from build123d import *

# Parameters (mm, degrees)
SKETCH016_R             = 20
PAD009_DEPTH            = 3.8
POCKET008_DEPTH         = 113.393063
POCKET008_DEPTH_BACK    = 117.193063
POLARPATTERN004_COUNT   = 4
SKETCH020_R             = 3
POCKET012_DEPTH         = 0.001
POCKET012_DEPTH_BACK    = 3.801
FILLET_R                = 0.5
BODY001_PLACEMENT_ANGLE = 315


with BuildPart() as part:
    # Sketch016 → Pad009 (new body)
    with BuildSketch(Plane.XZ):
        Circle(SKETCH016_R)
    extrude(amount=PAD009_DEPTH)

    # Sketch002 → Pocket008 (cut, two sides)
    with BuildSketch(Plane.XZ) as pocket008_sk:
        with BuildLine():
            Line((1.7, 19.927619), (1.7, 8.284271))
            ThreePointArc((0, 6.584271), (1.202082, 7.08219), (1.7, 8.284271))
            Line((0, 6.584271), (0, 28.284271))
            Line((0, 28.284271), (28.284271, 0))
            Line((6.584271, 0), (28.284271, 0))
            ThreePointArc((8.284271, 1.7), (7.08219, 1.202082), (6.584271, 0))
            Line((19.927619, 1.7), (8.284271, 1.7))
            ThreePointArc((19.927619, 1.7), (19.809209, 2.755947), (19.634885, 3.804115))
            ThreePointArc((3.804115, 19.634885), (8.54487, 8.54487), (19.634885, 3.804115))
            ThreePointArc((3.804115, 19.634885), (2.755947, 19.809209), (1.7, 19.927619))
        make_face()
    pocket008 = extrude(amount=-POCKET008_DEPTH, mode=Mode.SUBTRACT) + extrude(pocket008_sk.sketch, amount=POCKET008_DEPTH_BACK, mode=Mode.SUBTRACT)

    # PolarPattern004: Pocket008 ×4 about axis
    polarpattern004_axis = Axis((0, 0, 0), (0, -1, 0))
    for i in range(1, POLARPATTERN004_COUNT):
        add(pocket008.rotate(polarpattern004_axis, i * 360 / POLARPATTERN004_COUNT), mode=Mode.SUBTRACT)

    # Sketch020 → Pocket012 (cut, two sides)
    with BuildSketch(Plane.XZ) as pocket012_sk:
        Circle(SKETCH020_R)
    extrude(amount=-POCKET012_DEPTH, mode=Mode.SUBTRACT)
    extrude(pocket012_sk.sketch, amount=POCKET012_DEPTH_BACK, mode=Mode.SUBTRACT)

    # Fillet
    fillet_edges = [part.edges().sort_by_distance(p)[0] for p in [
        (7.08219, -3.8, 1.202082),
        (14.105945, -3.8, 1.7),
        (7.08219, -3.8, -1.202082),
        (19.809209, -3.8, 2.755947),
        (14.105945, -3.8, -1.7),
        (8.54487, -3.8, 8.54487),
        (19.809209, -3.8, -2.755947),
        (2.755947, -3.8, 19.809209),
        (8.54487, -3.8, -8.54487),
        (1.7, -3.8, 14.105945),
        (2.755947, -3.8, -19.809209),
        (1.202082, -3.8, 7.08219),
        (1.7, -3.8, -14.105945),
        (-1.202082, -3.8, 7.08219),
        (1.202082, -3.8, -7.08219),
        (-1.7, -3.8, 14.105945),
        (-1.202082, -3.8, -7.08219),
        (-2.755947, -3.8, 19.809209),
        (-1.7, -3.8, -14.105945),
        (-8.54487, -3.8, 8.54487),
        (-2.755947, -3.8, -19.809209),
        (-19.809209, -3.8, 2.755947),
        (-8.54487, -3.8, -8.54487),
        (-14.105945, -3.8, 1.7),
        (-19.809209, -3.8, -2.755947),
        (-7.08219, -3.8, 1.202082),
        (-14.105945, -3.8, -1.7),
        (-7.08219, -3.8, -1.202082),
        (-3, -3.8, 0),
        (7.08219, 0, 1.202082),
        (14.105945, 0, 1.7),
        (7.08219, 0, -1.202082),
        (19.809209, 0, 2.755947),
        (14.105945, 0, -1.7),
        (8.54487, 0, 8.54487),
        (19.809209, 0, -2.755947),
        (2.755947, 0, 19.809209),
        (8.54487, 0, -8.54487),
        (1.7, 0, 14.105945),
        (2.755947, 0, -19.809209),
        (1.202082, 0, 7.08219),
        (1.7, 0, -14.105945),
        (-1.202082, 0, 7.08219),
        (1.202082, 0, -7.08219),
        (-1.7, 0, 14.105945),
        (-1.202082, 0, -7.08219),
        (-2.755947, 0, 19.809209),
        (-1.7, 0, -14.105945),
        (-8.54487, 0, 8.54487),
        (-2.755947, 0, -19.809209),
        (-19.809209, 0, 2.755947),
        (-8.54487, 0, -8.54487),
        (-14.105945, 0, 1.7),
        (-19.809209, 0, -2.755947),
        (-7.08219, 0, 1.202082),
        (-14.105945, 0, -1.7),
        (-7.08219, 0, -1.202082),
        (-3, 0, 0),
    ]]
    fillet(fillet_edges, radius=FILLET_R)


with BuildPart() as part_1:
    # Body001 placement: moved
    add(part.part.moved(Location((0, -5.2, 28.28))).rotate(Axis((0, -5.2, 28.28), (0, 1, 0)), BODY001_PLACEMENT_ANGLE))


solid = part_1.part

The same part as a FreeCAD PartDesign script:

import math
import FreeCAD as App
import Part
import Sketcher

V = App.Vector
Q = App.Units.Quantity


def edges_at(feature, points):
    """Names of the edges that pass closest to the given points."""
    edges = feature.Shape.Edges
    near = lambda p: min(range(len(edges)), key=lambda i: edges[i].distToShape(Part.Vertex(*p))[0])
    return sorted({f"Edge{near(p) + 1}" for p in points})

doc = App.newDocument("Part")
body = doc.addObject("PartDesign::Body", "Body")

# Sketch on XZ plane
sketch1 = body.newObject("Sketcher::SketchObject", "Sketch")
sketch1.AttachmentSupport = (doc.getObject("XZ_Plane"), [""])
sketch1.MapMode = "FlatFace"
sketch1.addGeometry(Part.Circle(V(0, 0, 0), V(0, 0, 1), 20), False)
sketch1.addConstraint([
    Sketcher.Constraint("Coincident", 0, 3, -1, 1),
    Sketcher.Constraint("Diameter", 0, Q("40 mm")),
])
pad1 = body.newObject("PartDesign::Pad", "Pad")
pad1.Profile = sketch1
pad1.Length = 3.8

# Sketch on XZ plane
sketch2 = body.newObject("Sketcher::SketchObject", "Sketch001")
sketch2.AttachmentSupport = (doc.getObject("XZ_Plane"), [""])
sketch2.MapMode = "FlatFace"
sketch2.addGeometry([
    Part.LineSegment(V(1.7, 8.284271, 0), V(1.7, 19.927619, 0)),  # 0
    Part.ArcOfCircle(Part.Circle(V(0.000014, 0.000099, 0), V(0, 0, 1), 19.999901), math.radians(79.035194), math.radians(85.123991)),  # 1
    Part.ArcOfCircle(Part.Circle(V(19.999999, 19.999999, 0), V(0, 0, 1), 16.199999), math.radians(-178.708562), math.radians(-91.291438)),  # 2
    Part.ArcOfCircle(Part.Circle(V(0.000099, 0.000014, 0), V(0, 0, 1), 19.999901), math.radians(4.876009), math.radians(10.964806)),  # 3
    Part.LineSegment(V(19.927619, 1.7, 0), V(8.284271, 1.7, 0)),  # 4
    Part.ArcOfCircle(Part.Circle(V(8.284271, 0, 0), V(0, 0, 1), 1.7), math.radians(90.000003), math.radians(179.999997)),  # 5
    Part.LineSegment(V(6.584271, 0, 0), V(28.284271, 0, 0)),  # 6
    Part.LineSegment(V(28.284271, 0, 0), V(0, 28.284271, 0)),  # 7
    Part.LineSegment(V(0, 28.284271, 0), V(0, 6.584271, 0)),  # 8
    Part.ArcOfCircle(Part.Circle(V(0, 8.284271, 0), V(0, 0, 1), 1.7), math.radians(-89.999997), math.radians(-0.000003)),  # 9
], False)
sketch2.addConstraint([
    Sketcher.Constraint("Coincident", 0, 2, 1, 2),
    Sketcher.Constraint("Coincident", 1, 1, 2, 1),
    Sketcher.Constraint("Coincident", 2, 2, 3, 2),
    Sketcher.Constraint("Coincident", 3, 1, 4, 1),
    Sketcher.Constraint("Tangent", 4, 2, 5, 1),
    Sketcher.Constraint("Coincident", 5, 2, 6, 1),
    Sketcher.Constraint("Coincident", 6, 2, 7, 1),
    Sketcher.Constraint("Coincident", 7, 2, 8, 1),
    Sketcher.Constraint("Coincident", 8, 2, 9, 1),
    Sketcher.Constraint("Tangent", 9, 2, 0, 1),
    Sketcher.Constraint("Vertical", 0),
    Sketcher.Constraint("Horizontal", 4),
    Sketcher.Constraint("Horizontal", 6),
    Sketcher.Constraint("Vertical", 8),
    Sketcher.Constraint("Equal", 1, 3),
    Sketcher.Constraint("Equal", 5, 9),
    Sketcher.Constraint("PointOnObject", 5, 3, -1),
    Sketcher.Constraint("PointOnObject", 9, 3, -2),
    Sketcher.Constraint("PointOnObject", 5, 2, -1),
    Sketcher.Constraint("PointOnObject", 7, 2, -2),
    Sketcher.Constraint("Equal", 4, 0),
    Sketcher.Constraint("Equal", 6, 8),
    Sketcher.Constraint("Radius", 2, Q("16.199999 mm")),
    Sketcher.Constraint("Radius", 5, Q("1.7 mm")),
    Sketcher.Constraint("Angle", 7, Q("135 deg")),
    Sketcher.Constraint("Distance", 7, Q("40 mm")),
    Sketcher.Constraint("DistanceX", 6, 1, 6, 2, Q("21.7 mm")),
    Sketcher.Constraint("DistanceX", -1, 1, 2, 3, Q("19.999999 mm")),
    Sketcher.Constraint("DistanceY", -1, 1, 2, 3, Q("19.999999 mm")),
    Sketcher.Constraint("Radius", 1, Q("19.999901 mm")),
    Sketcher.Constraint("DistanceY", 1, 3, 2, 3, Q("19.999901 mm")),
    Sketcher.Constraint("DistanceX", 3, 3, 2, 3, Q("19.999901 mm")),
    Sketcher.Constraint("DistanceX", 1, 3, 1, 1, Q("3.804101 mm")),
])
pocket1 = body.newObject("PartDesign::Pocket", "Pocket")
pocket1.Profile = sketch2
pocket1.Type = "ThroughAll"
pocket1.Midplane = True
doc.recompute()

polarpattern = body.newObject("PartDesign::PolarPattern", "PolarPattern")
polarpattern.Originals = [pocket1]
polarpattern.Axis = (doc.getObject("Y_Axis"), [""])
polarpattern.Angle = 360
polarpattern.Occurrences = 4
body.Tip = polarpattern

# Sketch on XZ plane
sketch3 = body.newObject("Sketcher::SketchObject", "Sketch002")
sketch3.AttachmentSupport = (doc.getObject("XZ_Plane"), [""])
sketch3.MapMode = "FlatFace"
sketch3.addGeometry(Part.Circle(V(0, 0, 0), V(0, 0, 1), 3), False)
sketch3.addConstraint([
    Sketcher.Constraint("Coincident", 0, 3, -1, 1),
    Sketcher.Constraint("Diameter", 0, Q("6 mm")),
])
pocket2 = body.newObject("PartDesign::Pocket", "Pocket001")
pocket2.Profile = sketch3
pocket2.Type = "ThroughAll"
pocket2.Midplane = True
doc.recompute()

fillet = body.newObject("PartDesign::Fillet", "Fillet")
fillet.Base = (pocket2, edges_at(pocket2, [
    (7.082, -3.8, 1.202),
    (14.106, -3.8, 1.7),
    (7.082, -3.8, -1.202),
    (19.809, -3.8, 2.756),
    (14.106, -3.8, -1.7),
    (8.545, -3.8, 8.545),
    (19.809, -3.8, -2.756),
    (2.756, -3.8, 19.809),
    (8.545, -3.8, -8.545),
    (1.7, -3.8, 14.106),
    (2.756, -3.8, -19.809),
    (1.202, -3.8, 7.082),
    (1.7, -3.8, -14.106),
    (-1.202, -3.8, 7.082),
    (1.202, -3.8, -7.082),
    (-1.7, -3.8, 14.106),
    (-1.202, -3.8, -7.082),
    (-2.756, -3.8, 19.809),
    (-1.7, -3.8, -14.106),
    (-8.545, -3.8, 8.545),
    (-2.756, -3.8, -19.809),
    (-19.809, -3.8, 2.756),
    (-8.545, -3.8, -8.545),
    (-14.106, -3.8, 1.7),
    (-19.809, -3.8, -2.756),
    (-7.082, -3.8, 1.202),
    (-14.106, -3.8, -1.7),
    (-7.082, -3.8, -1.202),
    (-3, -3.8, 0),
    (7.082, 0, 1.202),
    (14.106, 0, 1.7),
    (7.082, 0, -1.202),
    (19.809, 0, 2.756),
    (14.106, 0, -1.7),
    (8.545, 0, 8.545),
    (19.809, 0, -2.756),
    (2.756, 0, 19.809),
    (8.545, 0, -8.545),
    (1.7, 0, 14.106),
    (2.756, 0, -19.809),
    (1.202, 0, 7.082),
    (1.7, 0, -14.106),
    (-1.202, 0, 7.082),
    (1.202, 0, -7.082),
    (-1.7, 0, 14.106),
    (-1.202, 0, -7.082),
    (-2.756, 0, 19.809),
    (-1.7, 0, -14.106),
    (-8.545, 0, 8.545),
    (-2.756, 0, -19.809),
    (-19.809, 0, 2.756),
    (-8.545, 0, -8.545),
    (-14.106, 0, 1.7),
    (-19.809, 0, -2.756),
    (-7.082, 0, 1.202),
    (-14.106, 0, -1.7),
    (-7.082, 0, -1.202),
    (-3, 0, 0),
]))
fillet.Radius = 0.5
body2 = doc.addObject("PartDesign::Body", "Body001")
doc.recompute()

body.Placement = App.Placement(V(0, -5.2, 28.28), App.Rotation(V(0, 1, 0), 315))
boolean = body2.newObject("PartDesign::Boolean", "Boolean")
boolean.Type = "Fuse"
boolean.addObjects([body])

doc.recompute()
